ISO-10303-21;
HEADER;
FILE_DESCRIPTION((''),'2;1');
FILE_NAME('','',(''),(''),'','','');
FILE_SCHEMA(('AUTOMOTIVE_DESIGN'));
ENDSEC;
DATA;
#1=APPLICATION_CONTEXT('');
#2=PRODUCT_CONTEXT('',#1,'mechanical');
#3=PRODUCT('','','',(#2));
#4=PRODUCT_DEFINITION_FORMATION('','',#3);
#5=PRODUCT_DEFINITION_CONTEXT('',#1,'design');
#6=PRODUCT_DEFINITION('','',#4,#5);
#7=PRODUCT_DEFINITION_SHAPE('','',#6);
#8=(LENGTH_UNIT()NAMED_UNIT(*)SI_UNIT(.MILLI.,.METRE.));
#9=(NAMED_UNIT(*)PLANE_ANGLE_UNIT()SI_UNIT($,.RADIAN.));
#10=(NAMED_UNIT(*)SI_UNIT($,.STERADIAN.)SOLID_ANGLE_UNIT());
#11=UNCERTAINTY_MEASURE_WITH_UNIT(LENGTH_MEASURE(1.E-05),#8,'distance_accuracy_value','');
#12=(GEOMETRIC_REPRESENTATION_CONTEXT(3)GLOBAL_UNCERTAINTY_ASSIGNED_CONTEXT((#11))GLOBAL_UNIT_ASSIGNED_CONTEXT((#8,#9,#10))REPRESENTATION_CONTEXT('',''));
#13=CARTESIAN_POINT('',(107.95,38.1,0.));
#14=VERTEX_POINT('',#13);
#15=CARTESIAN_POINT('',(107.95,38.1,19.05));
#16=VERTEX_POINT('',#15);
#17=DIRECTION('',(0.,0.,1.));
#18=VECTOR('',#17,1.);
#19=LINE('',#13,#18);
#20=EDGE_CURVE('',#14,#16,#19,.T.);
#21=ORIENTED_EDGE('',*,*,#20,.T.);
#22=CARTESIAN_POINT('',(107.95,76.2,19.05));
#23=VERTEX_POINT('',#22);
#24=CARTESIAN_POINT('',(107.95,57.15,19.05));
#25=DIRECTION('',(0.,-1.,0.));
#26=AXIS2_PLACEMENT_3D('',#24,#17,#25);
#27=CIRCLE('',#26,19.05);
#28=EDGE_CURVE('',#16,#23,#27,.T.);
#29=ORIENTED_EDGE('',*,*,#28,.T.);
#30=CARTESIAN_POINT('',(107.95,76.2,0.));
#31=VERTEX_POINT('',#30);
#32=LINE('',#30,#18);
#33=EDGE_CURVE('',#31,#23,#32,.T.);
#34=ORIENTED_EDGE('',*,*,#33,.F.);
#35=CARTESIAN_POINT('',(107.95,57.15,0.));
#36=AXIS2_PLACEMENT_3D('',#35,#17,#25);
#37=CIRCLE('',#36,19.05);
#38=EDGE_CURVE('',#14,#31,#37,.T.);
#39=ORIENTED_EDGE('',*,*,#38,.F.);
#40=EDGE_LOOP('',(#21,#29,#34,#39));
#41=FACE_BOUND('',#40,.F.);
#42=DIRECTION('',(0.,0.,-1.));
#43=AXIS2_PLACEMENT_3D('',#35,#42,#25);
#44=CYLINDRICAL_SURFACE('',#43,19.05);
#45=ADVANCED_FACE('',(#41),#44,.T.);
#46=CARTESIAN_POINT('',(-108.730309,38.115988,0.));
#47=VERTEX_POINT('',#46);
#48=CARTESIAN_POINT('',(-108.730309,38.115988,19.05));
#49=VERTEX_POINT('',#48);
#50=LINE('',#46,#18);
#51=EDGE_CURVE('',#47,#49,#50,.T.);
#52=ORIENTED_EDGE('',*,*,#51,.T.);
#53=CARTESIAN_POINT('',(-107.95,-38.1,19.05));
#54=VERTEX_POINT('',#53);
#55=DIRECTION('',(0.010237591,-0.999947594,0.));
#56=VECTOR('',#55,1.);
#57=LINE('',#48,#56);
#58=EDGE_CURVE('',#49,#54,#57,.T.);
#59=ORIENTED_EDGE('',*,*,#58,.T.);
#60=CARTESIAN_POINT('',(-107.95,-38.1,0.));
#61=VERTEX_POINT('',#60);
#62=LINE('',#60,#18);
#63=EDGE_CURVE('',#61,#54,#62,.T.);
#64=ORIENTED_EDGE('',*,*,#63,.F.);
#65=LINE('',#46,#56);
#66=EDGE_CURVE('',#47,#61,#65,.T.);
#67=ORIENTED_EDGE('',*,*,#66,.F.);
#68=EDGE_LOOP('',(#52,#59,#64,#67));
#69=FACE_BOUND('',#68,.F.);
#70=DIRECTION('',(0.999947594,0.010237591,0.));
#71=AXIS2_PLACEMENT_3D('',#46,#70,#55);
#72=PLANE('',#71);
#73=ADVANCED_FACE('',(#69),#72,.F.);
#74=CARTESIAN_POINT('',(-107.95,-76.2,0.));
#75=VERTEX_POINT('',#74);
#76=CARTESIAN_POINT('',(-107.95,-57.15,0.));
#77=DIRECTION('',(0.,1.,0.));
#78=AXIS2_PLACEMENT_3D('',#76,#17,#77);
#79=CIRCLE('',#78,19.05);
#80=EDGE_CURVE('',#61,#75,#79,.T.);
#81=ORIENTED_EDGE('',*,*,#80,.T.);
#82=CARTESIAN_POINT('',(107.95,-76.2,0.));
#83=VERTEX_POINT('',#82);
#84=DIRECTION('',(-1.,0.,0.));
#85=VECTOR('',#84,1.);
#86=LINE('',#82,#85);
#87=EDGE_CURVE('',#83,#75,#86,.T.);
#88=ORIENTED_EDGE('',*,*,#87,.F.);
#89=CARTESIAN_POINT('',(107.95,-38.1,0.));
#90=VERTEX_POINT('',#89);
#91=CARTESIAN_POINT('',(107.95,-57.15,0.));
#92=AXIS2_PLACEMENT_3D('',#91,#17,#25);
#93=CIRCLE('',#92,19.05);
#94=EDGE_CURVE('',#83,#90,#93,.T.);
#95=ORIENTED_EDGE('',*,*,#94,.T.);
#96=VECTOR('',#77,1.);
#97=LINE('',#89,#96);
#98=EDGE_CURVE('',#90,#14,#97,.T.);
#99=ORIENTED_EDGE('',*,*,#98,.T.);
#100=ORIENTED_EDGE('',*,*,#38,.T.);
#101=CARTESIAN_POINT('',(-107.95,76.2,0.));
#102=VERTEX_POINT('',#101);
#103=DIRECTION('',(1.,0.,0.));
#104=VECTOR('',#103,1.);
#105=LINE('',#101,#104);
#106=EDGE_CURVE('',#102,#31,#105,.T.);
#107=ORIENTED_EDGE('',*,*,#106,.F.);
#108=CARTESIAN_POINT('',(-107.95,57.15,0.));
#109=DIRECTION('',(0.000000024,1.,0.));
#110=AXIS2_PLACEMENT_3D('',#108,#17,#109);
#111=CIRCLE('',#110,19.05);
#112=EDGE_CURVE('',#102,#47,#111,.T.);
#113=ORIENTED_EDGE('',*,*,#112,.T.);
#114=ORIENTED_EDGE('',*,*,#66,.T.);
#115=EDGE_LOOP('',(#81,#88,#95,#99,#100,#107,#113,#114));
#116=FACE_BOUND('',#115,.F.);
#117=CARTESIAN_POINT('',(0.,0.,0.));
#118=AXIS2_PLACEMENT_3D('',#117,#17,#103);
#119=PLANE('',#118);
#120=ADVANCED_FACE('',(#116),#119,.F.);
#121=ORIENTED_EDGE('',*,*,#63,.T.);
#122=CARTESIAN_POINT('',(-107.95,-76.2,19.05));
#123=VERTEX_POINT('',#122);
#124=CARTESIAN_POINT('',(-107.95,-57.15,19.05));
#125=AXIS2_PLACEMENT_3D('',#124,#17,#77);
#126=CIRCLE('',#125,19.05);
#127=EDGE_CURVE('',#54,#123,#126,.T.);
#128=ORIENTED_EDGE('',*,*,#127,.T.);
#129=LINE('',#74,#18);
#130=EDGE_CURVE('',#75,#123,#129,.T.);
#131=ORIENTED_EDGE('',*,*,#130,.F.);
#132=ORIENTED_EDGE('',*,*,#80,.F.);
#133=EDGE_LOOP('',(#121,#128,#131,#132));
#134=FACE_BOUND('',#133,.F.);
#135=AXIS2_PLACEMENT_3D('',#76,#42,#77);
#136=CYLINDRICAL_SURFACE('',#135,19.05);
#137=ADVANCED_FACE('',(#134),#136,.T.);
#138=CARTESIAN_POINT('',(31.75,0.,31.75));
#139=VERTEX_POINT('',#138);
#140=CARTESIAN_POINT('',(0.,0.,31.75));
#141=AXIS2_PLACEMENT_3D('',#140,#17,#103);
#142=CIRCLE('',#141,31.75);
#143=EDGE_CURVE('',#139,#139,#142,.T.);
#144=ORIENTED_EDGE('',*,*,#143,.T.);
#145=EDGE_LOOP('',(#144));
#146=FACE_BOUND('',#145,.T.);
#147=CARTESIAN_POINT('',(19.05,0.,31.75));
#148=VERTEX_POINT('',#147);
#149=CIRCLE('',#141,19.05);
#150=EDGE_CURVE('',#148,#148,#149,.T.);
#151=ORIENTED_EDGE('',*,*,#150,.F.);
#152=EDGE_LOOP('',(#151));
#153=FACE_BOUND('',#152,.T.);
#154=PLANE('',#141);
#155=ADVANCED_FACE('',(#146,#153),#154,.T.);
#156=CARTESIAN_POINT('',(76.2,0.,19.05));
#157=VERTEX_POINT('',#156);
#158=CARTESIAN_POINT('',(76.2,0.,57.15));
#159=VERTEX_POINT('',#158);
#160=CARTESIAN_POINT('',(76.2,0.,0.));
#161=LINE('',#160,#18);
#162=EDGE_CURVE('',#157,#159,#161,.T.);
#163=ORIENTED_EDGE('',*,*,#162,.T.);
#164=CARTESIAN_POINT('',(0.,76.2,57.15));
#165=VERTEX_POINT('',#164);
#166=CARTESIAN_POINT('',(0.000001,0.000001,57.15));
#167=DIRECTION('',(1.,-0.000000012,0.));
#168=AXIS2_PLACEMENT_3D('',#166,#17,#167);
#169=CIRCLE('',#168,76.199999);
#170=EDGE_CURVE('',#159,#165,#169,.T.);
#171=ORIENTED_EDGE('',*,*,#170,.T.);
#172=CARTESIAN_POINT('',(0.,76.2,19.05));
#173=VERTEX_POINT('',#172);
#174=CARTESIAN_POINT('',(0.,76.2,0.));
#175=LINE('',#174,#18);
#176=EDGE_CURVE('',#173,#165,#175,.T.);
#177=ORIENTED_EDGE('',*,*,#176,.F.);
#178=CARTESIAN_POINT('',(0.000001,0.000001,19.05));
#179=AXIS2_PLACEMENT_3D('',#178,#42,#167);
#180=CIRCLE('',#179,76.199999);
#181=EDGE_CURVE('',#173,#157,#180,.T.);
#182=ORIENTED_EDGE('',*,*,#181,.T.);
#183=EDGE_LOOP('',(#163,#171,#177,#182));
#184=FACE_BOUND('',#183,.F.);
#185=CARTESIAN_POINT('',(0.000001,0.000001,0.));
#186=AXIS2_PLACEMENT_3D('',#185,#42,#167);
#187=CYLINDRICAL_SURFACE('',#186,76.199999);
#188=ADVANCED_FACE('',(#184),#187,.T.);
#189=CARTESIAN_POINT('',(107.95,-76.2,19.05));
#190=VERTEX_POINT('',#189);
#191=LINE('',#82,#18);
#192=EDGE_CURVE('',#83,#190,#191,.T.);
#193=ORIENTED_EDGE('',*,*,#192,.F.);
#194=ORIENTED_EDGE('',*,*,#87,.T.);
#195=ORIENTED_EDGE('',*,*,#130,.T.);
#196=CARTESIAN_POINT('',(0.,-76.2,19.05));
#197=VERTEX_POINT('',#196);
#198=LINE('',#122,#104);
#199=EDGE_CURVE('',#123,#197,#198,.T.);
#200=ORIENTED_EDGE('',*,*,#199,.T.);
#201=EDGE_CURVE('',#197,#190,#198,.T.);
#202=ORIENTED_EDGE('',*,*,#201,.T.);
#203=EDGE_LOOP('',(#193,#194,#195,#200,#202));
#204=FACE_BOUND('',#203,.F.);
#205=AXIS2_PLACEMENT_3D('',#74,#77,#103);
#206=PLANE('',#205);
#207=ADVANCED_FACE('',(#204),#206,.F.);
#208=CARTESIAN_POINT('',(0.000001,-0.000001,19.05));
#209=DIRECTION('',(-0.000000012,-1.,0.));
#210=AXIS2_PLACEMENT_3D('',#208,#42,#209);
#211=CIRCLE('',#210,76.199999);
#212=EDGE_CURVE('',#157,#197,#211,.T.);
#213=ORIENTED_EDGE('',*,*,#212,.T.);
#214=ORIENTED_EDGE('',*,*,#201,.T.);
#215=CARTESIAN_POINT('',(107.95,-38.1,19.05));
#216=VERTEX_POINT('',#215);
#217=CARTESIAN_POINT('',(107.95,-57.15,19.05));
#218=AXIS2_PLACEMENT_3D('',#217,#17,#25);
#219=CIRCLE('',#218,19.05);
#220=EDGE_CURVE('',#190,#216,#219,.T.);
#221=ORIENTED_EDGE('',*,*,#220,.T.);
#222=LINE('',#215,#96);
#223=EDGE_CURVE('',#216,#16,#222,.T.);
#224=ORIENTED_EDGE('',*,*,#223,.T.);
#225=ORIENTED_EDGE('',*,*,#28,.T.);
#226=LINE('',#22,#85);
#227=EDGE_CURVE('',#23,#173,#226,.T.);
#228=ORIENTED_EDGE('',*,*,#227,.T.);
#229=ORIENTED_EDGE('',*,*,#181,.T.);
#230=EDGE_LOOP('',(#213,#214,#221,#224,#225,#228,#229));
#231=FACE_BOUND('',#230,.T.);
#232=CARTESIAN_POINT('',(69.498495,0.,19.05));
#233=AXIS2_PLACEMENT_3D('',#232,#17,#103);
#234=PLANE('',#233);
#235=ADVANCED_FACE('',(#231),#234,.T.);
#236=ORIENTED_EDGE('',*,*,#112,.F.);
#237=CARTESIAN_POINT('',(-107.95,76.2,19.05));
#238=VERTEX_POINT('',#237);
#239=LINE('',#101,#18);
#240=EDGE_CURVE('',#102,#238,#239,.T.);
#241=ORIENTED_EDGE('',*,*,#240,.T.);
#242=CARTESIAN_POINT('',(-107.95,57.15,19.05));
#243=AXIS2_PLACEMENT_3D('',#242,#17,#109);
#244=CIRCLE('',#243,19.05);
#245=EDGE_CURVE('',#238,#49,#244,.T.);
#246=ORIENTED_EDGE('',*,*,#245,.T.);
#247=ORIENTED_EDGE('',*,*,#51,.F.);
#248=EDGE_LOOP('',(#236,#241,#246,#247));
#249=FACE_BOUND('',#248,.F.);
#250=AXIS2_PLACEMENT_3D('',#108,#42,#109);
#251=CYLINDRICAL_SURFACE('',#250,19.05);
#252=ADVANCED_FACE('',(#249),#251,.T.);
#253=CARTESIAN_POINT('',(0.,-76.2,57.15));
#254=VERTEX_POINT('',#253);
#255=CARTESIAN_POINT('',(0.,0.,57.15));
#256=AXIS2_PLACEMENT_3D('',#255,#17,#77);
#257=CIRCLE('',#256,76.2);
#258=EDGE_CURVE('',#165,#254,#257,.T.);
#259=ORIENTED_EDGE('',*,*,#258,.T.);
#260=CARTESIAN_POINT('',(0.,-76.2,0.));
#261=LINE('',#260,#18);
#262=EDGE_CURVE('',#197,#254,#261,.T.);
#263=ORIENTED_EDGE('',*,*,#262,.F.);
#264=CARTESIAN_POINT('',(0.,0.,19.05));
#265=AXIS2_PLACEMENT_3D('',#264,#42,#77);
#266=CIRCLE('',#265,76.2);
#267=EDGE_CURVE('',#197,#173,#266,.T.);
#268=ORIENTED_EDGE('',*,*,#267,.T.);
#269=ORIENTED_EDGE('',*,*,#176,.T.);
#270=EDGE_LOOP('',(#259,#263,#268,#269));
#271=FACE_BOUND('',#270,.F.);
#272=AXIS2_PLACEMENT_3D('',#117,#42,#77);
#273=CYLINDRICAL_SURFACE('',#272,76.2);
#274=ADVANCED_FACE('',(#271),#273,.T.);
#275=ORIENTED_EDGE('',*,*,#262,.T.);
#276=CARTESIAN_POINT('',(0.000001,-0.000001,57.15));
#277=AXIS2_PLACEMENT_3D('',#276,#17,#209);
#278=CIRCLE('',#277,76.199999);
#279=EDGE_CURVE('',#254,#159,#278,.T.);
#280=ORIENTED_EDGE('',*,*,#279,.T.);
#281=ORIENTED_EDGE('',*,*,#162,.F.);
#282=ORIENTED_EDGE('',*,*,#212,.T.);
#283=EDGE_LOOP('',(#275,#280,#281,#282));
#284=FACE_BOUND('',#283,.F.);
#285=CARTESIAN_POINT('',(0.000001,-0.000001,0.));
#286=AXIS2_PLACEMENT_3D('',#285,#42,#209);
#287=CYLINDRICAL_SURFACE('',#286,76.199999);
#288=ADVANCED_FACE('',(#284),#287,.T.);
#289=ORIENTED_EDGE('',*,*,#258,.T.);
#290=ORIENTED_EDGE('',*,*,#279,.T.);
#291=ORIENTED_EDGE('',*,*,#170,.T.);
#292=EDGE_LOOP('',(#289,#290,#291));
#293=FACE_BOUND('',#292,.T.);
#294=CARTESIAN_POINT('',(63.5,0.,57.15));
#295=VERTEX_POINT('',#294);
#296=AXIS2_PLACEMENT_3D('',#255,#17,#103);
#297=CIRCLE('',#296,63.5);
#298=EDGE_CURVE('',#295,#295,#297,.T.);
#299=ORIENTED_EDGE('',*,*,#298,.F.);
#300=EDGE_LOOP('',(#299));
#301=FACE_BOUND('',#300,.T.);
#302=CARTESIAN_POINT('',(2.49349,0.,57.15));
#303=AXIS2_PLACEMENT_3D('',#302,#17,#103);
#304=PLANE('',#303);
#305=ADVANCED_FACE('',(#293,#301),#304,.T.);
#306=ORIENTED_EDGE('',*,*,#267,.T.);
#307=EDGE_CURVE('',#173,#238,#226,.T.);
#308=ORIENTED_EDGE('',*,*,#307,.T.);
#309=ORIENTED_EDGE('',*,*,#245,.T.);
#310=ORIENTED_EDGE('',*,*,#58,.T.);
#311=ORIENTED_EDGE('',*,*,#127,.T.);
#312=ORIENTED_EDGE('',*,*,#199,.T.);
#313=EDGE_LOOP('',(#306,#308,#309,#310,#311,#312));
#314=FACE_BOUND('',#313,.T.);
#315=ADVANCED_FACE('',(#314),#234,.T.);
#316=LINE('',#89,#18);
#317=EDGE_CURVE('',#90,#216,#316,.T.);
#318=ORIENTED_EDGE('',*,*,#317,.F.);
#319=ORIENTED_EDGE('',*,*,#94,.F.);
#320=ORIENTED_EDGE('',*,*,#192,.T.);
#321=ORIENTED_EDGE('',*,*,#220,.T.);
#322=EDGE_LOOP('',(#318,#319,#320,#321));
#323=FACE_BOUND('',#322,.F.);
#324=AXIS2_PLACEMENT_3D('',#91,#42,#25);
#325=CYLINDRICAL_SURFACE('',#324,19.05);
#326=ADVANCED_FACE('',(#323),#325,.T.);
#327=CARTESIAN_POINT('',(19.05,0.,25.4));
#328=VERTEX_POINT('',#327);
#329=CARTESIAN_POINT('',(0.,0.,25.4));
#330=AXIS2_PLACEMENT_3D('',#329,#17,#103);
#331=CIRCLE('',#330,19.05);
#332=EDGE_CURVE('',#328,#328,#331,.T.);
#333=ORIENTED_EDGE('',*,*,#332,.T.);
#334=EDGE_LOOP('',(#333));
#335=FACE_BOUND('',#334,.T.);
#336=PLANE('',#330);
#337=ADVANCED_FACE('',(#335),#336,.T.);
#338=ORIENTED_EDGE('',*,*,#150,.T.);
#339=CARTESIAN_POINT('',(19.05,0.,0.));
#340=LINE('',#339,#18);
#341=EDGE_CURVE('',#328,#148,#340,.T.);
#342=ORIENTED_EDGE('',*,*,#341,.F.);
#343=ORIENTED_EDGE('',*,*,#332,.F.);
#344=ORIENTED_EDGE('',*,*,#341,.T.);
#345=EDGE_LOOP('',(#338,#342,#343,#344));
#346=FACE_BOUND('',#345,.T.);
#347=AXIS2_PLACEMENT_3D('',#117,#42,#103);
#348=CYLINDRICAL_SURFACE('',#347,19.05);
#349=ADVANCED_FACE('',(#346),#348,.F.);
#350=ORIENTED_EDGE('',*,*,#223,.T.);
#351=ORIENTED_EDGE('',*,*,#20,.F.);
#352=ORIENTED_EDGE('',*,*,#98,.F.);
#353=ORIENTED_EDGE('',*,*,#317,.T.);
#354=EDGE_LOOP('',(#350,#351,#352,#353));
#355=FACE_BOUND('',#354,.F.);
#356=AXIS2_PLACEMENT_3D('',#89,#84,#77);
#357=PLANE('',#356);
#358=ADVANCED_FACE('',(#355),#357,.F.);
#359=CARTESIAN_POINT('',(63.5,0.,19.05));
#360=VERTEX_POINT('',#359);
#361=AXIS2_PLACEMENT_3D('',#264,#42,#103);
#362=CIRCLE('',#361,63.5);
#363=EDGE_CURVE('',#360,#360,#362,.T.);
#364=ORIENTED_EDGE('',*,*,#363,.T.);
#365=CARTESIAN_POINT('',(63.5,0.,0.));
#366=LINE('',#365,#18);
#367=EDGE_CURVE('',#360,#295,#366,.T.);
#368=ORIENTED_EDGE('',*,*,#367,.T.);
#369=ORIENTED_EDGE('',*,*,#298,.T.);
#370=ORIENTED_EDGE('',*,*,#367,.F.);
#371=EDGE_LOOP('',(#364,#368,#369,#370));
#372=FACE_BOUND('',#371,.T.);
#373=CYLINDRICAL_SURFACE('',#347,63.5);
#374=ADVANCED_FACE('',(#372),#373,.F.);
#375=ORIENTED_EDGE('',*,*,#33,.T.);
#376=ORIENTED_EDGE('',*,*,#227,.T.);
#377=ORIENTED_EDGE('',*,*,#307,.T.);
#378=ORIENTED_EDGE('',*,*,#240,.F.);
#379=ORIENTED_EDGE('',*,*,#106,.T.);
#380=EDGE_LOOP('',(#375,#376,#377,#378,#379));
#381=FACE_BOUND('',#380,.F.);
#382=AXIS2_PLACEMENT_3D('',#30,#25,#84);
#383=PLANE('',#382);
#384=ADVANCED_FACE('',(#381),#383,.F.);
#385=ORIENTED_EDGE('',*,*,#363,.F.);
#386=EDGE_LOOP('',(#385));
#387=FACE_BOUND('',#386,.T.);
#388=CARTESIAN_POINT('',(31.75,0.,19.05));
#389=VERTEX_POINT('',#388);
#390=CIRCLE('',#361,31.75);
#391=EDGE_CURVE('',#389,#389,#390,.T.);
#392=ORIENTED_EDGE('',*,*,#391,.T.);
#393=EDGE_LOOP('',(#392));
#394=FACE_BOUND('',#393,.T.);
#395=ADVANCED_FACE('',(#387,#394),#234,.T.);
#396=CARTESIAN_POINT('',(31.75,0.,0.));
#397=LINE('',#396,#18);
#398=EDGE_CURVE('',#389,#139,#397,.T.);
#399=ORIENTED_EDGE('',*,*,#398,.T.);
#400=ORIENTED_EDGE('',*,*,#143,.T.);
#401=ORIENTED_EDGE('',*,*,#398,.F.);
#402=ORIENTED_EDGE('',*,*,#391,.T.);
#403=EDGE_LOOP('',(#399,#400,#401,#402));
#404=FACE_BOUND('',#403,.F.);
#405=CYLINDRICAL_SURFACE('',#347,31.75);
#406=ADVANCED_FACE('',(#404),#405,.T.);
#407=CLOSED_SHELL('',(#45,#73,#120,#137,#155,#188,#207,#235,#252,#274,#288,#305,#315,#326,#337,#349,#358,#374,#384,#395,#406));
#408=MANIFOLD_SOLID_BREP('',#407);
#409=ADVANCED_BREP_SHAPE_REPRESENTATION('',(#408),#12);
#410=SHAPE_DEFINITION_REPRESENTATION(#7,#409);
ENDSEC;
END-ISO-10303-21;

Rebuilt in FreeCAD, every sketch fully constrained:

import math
import FreeCAD as App
import Part
import Sketcher
Q = App.Units.Quantity

doc = App.newDocument("Part")
body = doc.addObject("PartDesign::Body", "Body")

sketch1 = doc.addObject("Sketcher::SketchObject", "Sketch")
body.addObject(sketch1)
sketch1.AttachmentSupport = (doc.XY_Plane, [""])
sketch1.MapMode = "FlatFace"
sketch1.addGeometry(Part.ArcOfCircle(Part.Circle(App.Vector(108, -57, 0), App.Vector(0, 0, 1), 19), math.radians(-90), math.radians(90)), False)
sketch1.addGeometry(Part.LineSegment(App.Vector(108, -38, 0), App.Vector(108, 38, 0)), False)
sketch1.addGeometry(Part.ArcOfCircle(Part.Circle(App.Vector(108, 57, 0), App.Vector(0, 0, 1), 19), math.radians(-90), math.radians(90)), False)
sketch1.addGeometry(Part.LineSegment(App.Vector(108, 76, 0), App.Vector(-108, 76, 0)), False)
sketch1.addGeometry(Part.ArcOfCircle(Part.Circle(App.Vector(-108, 57, 0), App.Vector(0, 0, 1), 19), math.radians(90), math.radians(268)), False)
sketch1.addGeometry(Part.LineSegment(App.Vector(-109, 38, 0), App.Vector(-108, -38, 0)), False)
sketch1.addGeometry(Part.ArcOfCircle(Part.Circle(App.Vector(-108, -57, 0), App.Vector(0, 0, 1), 19), math.radians(90), math.radians(270)), False)
sketch1.addGeometry(Part.LineSegment(App.Vector(-108, -76, 0), App.Vector(108, -76, 0)), False)
sketch1.addConstraint(Sketcher.Constraint("Coincident", 0, 2, 1, 1))
sketch1.addConstraint(Sketcher.Constraint("Coincident", 1, 2, 2, 1))
sketch1.addConstraint(Sketcher.Constraint("Tangent", 2, 2, 3, 1))
sketch1.addConstraint(Sketcher.Constraint("Tangent", 3, 2, 4, 1))
sketch1.addConstraint(Sketcher.Constraint("Coincident", 4, 2, 5, 1))
sketch1.addConstraint(Sketcher.Constraint("Coincident", 5, 2, 6, 1))
sketch1.addConstraint(Sketcher.Constraint("Tangent", 6, 2, 7, 1))
sketch1.addConstraint(Sketcher.Constraint("Tangent", 7, 2, 0, 1))
sketch1.addConstraint(Sketcher.Constraint("Vertical", 1))
sketch1.addConstraint(Sketcher.Constraint("Horizontal", 3))
sketch1.addConstraint(Sketcher.Constraint("Horizontal", 7))
sketch1.addConstraint(Sketcher.Constraint("Equal", 0, 2))
sketch1.addConstraint(Sketcher.Constraint("Equal", 2, 4))
sketch1.addConstraint(Sketcher.Constraint("Equal", 4, 6))
sketch1.addConstraint(Sketcher.Constraint("Symmetric", 0, 3, 4, 3, -1, 1))
sketch1.addConstraint(Sketcher.Constraint("Vertical", 0, 3, 2, 3))
sketch1.addConstraint(Sketcher.Constraint("Vertical", 4, 3, 6, 3))
sketch1.addConstraint(Sketcher.Constraint("Vertical", 2, 3, 0, 2))
sketch1.addConstraint(Sketcher.Constraint("Vertical", 3, 2, 5, 2))
sketch1.addConstraint(Sketcher.Constraint("DistanceY", 1, 1, 1, 2, Q("3 in")))
sketch1.addConstraint(Sketcher.Constraint("Radius", 0, Q("0.75 in")))
sketch1.addConstraint(Sketcher.Constraint("DistanceX", 3, 2, 3, 1, Q("8.5 in")))
sketch1.addConstraint(Sketcher.Constraint("DistanceX", 4, 2, -1, 1, 108.730309))
pad1 = doc.addObject("PartDesign::Pad", "Pad")
body.addObject(pad1)
pad1.Profile = sketch1
pad1.Length = Q("0.75 in")

sketch2 = doc.addObject("Sketcher::SketchObject", "Sketch001")
body.addObject(sketch2)
sketch2.AttachmentSupport = (doc.XY_Plane, [""])
sketch2.MapMode = "FlatFace"
sketch2.addGeometry(Part.ArcOfCircle(Part.Circle(App.Vector(0, 0, 0), App.Vector(0, 0, 1), 76), math.radians(-90), math.radians(0)), False)
sketch2.addGeometry(Part.ArcOfCircle(Part.Circle(App.Vector(0, 0, 0), App.Vector(0, 0, 1), 76), math.radians(0), math.radians(90)), False)
sketch2.addGeometry(Part.ArcOfCircle(Part.Circle(App.Vector(0, 0, 0), App.Vector(0, 0, 1), 76), math.radians(90), math.radians(270)), False)
sketch2.addGeometry(Part.Circle(App.Vector(0, 0, 0), App.Vector(0, 0, 1), 64), False)
sketch2.addConstraint(Sketcher.Constraint("Tangent", 0, 2, 1, 1))
sketch2.addConstraint(Sketcher.Constraint("Tangent", 1, 2, 2, 1))
sketch2.addConstraint(Sketcher.Constraint("Tangent", 2, 2, 0, 1))
sketch2.addConstraint(Sketcher.Constraint("Coincident", 0, 3, -1, 1))
sketch2.addConstraint(Sketcher.Constraint("Coincident", 3, 3, -1, 1))
sketch2.addConstraint(Sketcher.Constraint("PointOnObject", 0, 2, -1))
sketch2.addConstraint(Sketcher.Constraint("PointOnObject", 1, 2, -2))
sketch2.addConstraint(Sketcher.Constraint("PointOnObject", 2, 2, -2))
sketch2.addConstraint(Sketcher.Constraint("Diameter", 3, Q("5 in")))
sketch2.addConstraint(Sketcher.Constraint("Radius", 0, Q("3 in")))
pad2 = doc.addObject("PartDesign::Pad", "Pad001")
body.addObject(pad2)
pad2.Profile = sketch2
pad2.Length = Q("2.25 in")

sketch3 = doc.addObject("Sketcher::SketchObject", "Sketch002")
body.addObject(sketch3)
sketch3.AttachmentSupport = (doc.XY_Plane, [""])
sketch3.MapMode = "FlatFace"
sketch3.addGeometry(Part.Circle(App.Vector(0, 0, 0), App.Vector(0, 0, 1), 32), False)
sketch3.addGeometry(Part.Circle(App.Vector(0, 0, 0), App.Vector(0, 0, 1), 19), False)
sketch3.addConstraint(Sketcher.Constraint("Coincident", 0, 3, -1, 1))
sketch3.addConstraint(Sketcher.Constraint("Coincident", 1, 3, -1, 1))
sketch3.addConstraint(Sketcher.Constraint("Diameter", 0, Q("2.5 in")))
sketch3.addConstraint(Sketcher.Constraint("Diameter", 1, Q("1.5 in")))
pad3 = doc.addObject("PartDesign::Pad", "Pad002")
body.addObject(pad3)
pad3.Profile = sketch3
pad3.Length = Q("1.25 in")

sketch4 = doc.addObject("Sketcher::SketchObject", "Sketch003")
body.addObject(sketch4)
sketch4.AttachmentSupport = (doc.XY_Plane, [""])
sketch4.MapMode = "FlatFace"
sketch4.addGeometry(Part.Circle(App.Vector(0, 0, 0), App.Vector(0, 0, 1), 19), False)
sketch4.addConstraint(Sketcher.Constraint("Coincident", 0, 3, -1, 1))
sketch4.addConstraint(Sketcher.Constraint("Diameter", 0, Q("1.5 in")))
pad4 = doc.addObject("PartDesign::Pad", "Pad003")
body.addObject(pad4)
pad4.Profile = sketch4
pad4.Length = Q("1 in")

doc.recompute()
